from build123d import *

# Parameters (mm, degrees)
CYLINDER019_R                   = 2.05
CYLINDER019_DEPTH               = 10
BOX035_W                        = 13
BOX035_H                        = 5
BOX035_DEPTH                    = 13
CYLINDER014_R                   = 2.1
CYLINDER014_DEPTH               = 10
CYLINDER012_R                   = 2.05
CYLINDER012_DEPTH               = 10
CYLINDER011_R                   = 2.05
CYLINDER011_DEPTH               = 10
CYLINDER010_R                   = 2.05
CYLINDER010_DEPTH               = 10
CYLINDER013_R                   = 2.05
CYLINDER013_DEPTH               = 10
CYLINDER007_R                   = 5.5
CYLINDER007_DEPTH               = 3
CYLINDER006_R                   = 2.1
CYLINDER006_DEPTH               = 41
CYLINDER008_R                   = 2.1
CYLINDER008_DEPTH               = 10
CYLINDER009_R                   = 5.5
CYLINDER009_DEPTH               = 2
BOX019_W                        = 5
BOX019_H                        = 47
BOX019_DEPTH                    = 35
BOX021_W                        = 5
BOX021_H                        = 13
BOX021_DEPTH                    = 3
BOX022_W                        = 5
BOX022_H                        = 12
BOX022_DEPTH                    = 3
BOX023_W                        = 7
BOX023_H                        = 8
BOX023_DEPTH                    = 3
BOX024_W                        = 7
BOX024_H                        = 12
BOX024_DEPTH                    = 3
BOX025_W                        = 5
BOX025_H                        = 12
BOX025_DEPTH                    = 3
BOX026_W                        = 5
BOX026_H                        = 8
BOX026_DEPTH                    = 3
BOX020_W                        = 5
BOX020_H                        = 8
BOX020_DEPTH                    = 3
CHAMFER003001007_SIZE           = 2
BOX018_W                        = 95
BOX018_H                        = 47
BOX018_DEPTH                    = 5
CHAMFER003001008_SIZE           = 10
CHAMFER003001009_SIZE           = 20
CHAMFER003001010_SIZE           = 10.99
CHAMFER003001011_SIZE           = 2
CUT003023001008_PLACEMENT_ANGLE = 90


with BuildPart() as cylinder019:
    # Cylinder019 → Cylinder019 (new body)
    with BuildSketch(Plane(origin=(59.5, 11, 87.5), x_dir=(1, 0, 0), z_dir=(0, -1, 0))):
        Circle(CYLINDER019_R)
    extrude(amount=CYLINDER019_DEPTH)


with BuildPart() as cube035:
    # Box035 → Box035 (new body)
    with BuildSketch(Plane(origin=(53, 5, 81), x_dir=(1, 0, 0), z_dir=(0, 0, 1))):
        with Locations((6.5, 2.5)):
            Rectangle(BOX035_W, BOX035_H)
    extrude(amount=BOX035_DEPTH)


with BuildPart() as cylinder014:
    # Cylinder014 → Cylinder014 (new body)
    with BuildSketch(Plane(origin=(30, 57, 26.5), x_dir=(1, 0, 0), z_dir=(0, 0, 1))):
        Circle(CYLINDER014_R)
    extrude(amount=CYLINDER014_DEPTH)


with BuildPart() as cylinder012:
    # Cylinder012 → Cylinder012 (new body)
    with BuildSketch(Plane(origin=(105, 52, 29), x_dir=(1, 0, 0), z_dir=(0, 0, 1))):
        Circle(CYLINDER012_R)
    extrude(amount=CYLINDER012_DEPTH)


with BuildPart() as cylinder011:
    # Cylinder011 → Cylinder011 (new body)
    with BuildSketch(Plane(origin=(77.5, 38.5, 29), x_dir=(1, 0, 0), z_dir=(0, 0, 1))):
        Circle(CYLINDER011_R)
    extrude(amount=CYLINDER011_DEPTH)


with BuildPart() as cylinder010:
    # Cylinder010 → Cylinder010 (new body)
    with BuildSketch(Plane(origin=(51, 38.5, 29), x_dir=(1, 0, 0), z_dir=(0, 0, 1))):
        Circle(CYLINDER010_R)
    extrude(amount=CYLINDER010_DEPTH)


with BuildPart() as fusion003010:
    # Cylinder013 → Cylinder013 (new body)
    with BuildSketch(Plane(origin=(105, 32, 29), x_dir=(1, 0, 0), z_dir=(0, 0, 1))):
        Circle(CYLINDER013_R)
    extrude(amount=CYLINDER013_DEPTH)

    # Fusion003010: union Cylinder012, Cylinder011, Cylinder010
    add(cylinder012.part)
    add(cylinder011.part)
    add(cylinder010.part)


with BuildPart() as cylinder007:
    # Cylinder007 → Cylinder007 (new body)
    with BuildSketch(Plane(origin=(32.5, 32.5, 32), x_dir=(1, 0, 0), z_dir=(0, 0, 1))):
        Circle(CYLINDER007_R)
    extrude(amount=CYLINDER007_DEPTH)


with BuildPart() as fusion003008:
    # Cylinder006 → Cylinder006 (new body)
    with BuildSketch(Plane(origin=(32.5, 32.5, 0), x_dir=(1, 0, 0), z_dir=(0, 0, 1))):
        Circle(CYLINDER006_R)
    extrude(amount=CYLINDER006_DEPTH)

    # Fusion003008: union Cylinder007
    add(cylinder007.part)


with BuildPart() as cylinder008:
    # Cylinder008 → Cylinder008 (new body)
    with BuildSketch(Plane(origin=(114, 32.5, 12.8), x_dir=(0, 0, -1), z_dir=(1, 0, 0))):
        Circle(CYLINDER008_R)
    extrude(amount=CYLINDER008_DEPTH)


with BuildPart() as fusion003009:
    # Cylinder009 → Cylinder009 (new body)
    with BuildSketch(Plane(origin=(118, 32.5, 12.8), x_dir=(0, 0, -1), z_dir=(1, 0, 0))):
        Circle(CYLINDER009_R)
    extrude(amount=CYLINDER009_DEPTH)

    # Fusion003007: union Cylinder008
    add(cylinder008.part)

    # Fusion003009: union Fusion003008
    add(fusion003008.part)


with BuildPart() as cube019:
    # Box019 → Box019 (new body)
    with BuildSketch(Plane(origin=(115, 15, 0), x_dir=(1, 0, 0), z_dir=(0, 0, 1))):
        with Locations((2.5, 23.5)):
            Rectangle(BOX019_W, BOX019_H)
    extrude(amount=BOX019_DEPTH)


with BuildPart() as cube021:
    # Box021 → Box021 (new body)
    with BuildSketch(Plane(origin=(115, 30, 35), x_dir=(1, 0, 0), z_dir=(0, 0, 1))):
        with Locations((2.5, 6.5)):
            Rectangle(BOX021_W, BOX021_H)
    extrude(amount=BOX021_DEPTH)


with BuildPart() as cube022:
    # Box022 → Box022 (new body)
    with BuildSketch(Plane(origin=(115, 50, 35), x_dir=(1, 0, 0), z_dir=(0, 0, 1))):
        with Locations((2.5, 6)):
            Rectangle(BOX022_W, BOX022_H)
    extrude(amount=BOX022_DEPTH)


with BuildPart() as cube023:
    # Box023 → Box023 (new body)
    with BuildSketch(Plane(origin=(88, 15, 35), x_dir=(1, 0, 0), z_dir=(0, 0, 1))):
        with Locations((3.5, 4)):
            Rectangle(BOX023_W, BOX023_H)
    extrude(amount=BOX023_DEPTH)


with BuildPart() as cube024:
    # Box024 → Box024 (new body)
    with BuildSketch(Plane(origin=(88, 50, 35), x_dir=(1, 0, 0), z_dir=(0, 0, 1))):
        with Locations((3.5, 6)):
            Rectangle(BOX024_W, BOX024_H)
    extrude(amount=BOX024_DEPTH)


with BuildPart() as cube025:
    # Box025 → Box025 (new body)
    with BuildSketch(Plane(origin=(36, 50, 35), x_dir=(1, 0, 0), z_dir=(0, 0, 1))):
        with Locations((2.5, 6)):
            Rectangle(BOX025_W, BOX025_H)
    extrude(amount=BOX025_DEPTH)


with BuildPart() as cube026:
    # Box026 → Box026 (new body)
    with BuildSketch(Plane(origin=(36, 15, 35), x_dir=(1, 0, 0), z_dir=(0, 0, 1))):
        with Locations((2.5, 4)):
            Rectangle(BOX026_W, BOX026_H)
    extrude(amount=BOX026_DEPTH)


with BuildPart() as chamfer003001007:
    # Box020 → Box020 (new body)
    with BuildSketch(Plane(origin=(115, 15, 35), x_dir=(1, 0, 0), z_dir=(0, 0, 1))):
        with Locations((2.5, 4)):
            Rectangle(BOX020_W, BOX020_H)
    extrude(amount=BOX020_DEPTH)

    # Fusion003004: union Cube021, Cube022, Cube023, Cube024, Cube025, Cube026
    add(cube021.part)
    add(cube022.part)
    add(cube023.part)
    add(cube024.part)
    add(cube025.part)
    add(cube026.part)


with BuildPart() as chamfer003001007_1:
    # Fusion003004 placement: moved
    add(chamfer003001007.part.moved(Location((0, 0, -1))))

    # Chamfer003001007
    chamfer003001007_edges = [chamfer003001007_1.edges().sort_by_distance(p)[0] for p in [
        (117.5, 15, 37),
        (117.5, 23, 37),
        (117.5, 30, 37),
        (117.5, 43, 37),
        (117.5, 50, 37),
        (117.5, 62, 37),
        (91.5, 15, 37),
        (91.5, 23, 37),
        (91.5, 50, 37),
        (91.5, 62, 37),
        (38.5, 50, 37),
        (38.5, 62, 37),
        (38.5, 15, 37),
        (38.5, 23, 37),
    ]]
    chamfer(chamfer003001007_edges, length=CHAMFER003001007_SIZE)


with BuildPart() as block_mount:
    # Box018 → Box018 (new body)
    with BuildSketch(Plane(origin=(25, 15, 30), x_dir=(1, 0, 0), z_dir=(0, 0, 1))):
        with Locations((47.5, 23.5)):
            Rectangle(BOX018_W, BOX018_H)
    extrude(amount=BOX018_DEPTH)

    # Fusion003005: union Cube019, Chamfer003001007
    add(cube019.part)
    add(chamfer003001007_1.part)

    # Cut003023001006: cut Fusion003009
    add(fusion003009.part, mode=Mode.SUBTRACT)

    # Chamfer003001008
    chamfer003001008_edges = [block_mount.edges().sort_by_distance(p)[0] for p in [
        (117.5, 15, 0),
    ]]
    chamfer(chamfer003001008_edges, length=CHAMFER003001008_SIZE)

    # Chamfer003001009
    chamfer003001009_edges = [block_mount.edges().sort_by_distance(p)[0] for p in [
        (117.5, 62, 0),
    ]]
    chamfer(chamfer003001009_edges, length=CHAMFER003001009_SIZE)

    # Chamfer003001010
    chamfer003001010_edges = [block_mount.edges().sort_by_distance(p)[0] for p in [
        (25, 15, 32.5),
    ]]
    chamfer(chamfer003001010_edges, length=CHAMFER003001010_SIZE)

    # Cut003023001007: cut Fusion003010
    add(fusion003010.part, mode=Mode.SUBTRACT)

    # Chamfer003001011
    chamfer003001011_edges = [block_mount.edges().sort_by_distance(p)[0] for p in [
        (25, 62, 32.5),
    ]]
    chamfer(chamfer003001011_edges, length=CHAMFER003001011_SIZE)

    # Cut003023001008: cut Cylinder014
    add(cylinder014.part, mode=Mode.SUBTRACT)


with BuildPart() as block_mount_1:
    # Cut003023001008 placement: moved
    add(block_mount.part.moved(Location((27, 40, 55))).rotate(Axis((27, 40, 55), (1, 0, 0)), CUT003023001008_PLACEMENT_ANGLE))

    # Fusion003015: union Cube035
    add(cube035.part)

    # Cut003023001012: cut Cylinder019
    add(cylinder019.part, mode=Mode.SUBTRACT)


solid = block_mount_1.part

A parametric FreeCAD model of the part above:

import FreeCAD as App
import Part
import Sketcher
Q = App.Units.Quantity


def edges_at(feature, points):
    """Names of the edges that pass closest to the given points."""
    edges = feature.Shape.Edges
    near = lambda p: min(range(len(edges)), key=lambda i: edges[i].distToShape(Part.Vertex(*p))[0])
    return sorted({f"Edge{near(p) + 1}" for p in points})

doc = App.newDocument("Part")
body = doc.addObject("PartDesign::Body", "Body")

sketch1 = body.newObject("Sketcher::SketchObject", "Sketch")
sketch1.AttachmentSupport = (doc.getObject("XZ_Plane"), [""])
sketch1.MapMode = "FlatFace"
sketch1.AttachmentOffset = App.Placement(App.Vector(0, 0, -11), App.Rotation())
sketch1.addGeometry(Part.Circle(App.Vector(59.5, 87.5, 0), App.Vector(0, 0, 1), 2), False)
sketch1.addConstraint(Sketcher.Constraint("Diameter", 0, Q("4.1 mm")))
sketch1.addConstraint(Sketcher.Constraint("DistanceX", -1, 1, 0, 3, Q("59.5 mm")))
sketch1.addConstraint(Sketcher.Constraint("DistanceY", -1, 1, 0, 3, Q("87.5 mm")))
pad1 = body.newObject("PartDesign::Pad", "Pad")
pad1.Profile = sketch1
pad1.Length = 10
body2 = doc.addObject("PartDesign::Body", "Body001")

sketch2 = body2.newObject("Sketcher::SketchObject", "Sketch001")
sketch2.AttachmentSupport = (doc.getObject("XY_Plane001"), [""])
sketch2.MapMode = "FlatFace"
sketch2.AttachmentOffset = App.Placement(App.Vector(0, 0, 81), App.Rotation())
sketch2.addGeometry(Part.LineSegment(App.Vector(53, 10, 0), App.Vector(53, 5, 0)), False)
sketch2.addGeometry(Part.LineSegment(App.Vector(53, 5, 0), App.Vector(66, 5, 0)), False)
sketch2.addGeometry(Part.LineSegment(App.Vector(66, 5, 0), App.Vector(66, 10, 0)), False)
sketch2.addGeometry(Part.LineSegment(App.Vector(66, 10, 0), App.Vector(53, 10, 0)), False)
sketch2.addConstraint(Sketcher.Constraint("Coincident", 0, 2, 1, 1))
sketch2.addConstraint(Sketcher.Constraint("Coincident", 1, 2, 2, 1))
sketch2.addConstraint(Sketcher.Constraint("Coincident", 2, 2, 3, 1))
sketch2.addConstraint(Sketcher.Constraint("Coincident", 3, 2, 0, 1))
sketch2.addConstraint(Sketcher.Constraint("Vertical", 0))
sketch2.addConstraint(Sketcher.Constraint("Horizontal", 1))
sketch2.addConstraint(Sketcher.Constraint("Vertical", 2))
sketch2.addConstraint(Sketcher.Constraint("Horizontal", 3))
sketch2.addConstraint(Sketcher.Constraint("DistanceX", 1, 1, 1, 2, Q("13 mm")))
sketch2.addConstraint(Sketcher.Constraint("DistanceY", 0, 2, 0, 1, Q("5 mm")))
sketch2.addConstraint(Sketcher.Constraint("DistanceX", -1, 1, 0, 2, Q("53 mm")))
sketch2.addConstraint(Sketcher.Constraint("DistanceY", -1, 1, 0, 2, Q("5 mm")))
pad2 = body2.newObject("PartDesign::Pad", "Pad001")
pad2.Profile = sketch2
pad2.Length = 13
body3 = doc.addObject("PartDesign::Body", "Body002")

sketch3 = body3.newObject("Sketcher::SketchObject", "Sketch002")
sketch3.AttachmentSupport = (doc.getObject("XY_Plane002"), [""])
sketch3.MapMode = "FlatFace"
sketch3.AttachmentOffset = App.Placement(App.Vector(0, 0, 26.5), App.Rotation())
sketch3.addGeometry(Part.Circle(App.Vector(30, 57, 0), App.Vector(0, 0, 1), 2.1), False)
sketch3.addConstraint(Sketcher.Constraint("Diameter", 0, Q("4.2 mm")))
sketch3.addConstraint(Sketcher.Constraint("DistanceX", -1, 1, 0, 3, Q("30 mm")))
sketch3.addConstraint(Sketcher.Constraint("DistanceY", -1, 1, 0, 3, Q("57 mm")))
pad3 = body3.newObject("PartDesign::Pad", "Pad002")
pad3.Profile = sketch3
pad3.Length = 10
body4 = doc.addObject("PartDesign::Body", "Body003")

sketch4 = body4.newObject("Sketcher::SketchObject", "Sketch003")
sketch4.AttachmentSupport = (doc.getObject("XY_Plane003"), [""])
sketch4.MapMode = "FlatFace"
sketch4.AttachmentOffset = App.Placement(App.Vector(0, 0, 29), App.Rotation())
sketch4.addGeometry(Part.Circle(App.Vector(105, 52, 0), App.Vector(0, 0, 1), 2), False)
sketch4.addConstraint(Sketcher.Constraint("Diameter", 0, Q("4.1 mm")))
sketch4.addConstraint(Sketcher.Constraint("DistanceX", -1, 1, 0, 3, Q("105 mm")))
sketch4.addConstraint(Sketcher.Constraint("DistanceY", -1, 1, 0, 3, Q("52 mm")))
pad4 = body4.newObject("PartDesign::Pad", "Pad003")
pad4.Profile = sketch4
pad4.Length = 10
body5 = doc.addObject("PartDesign::Body", "Body004")

sketch5 = body5.newObject("Sketcher::SketchObject", "Sketch004")
sketch5.AttachmentSupport = (doc.getObject("XY_Plane004"), [""])
sketch5.MapMode = "FlatFace"
sketch5.AttachmentOffset = App.Placement(App.Vector(0, 0, 29), App.Rotation())
sketch5.addGeometry(Part.Circle(App.Vector(77.5, 38.5, 0), App.Vector(0, 0, 1), 2), False)
sketch5.addConstraint(Sketcher.Constraint("Diameter", 0, Q("4.1 mm")))
sketch5.addConstraint(Sketcher.Constraint("DistanceX", -1, 1, 0, 3, Q("77.5 mm")))
sketch5.addConstraint(Sketcher.Constraint("DistanceY", -1, 1, 0, 3, Q("38.5 mm")))
pad5 = body5.newObject("PartDesign::Pad", "Pad004")
pad5.Profile = sketch5
pad5.Length = 10
body6 = doc.addObject("PartDesign::Body", "Body005")

sketch6 = body6.newObject("Sketcher::SketchObject", "Sketch005")
sketch6.AttachmentSupport = (doc.getObject("XY_Plane005"), [""])
sketch6.MapMode = "FlatFace"
sketch6.AttachmentOffset = App.Placement(App.Vector(0, 0, 29), App.Rotation())
sketch6.addGeometry(Part.Circle(App.Vector(51, 38.5, 0), App.Vector(0, 0, 1), 2), False)
sketch6.addConstraint(Sketcher.Constraint("Diameter", 0, Q("4.1 mm")))
sketch6.addConstraint(Sketcher.Constraint("DistanceX", -1, 1, 0, 3, Q("51 mm")))
sketch6.addConstraint(Sketcher.Constraint("DistanceY", -1, 1, 0, 3, Q("38.5 mm")))
pad6 = body6.newObject("PartDesign::Pad", "Pad005")
pad6.Profile = sketch6
pad6.Length = 10
body7 = doc.addObject("PartDesign::Body", "Body006")
body7.AllowCompound = True

sketch7 = body7.newObject("Sketcher::SketchObject", "Sketch006")
sketch7.AttachmentSupport = (doc.getObject("XY_Plane006"), [""])
sketch7.MapMode = "FlatFace"
sketch7.AttachmentOffset = App.Placement(App.Vector(0, 0, 29), App.Rotation())
sketch7.addGeometry(Part.Circle(App.Vector(105, 32, 0), App.Vector(0, 0, 1), 2), False)
sketch7.addConstraint(Sketcher.Constraint("Diameter", 0, Q("4.1 mm")))
sketch7.addConstraint(Sketcher.Constraint("DistanceX", -1, 1, 0, 3, Q("105 mm")))
sketch7.addConstraint(Sketcher.Constraint("DistanceY", -1, 1, 0, 3, Q("32 mm")))
pad7 = body7.newObject("PartDesign::Pad", "Pad006")
pad7.Profile = sketch7
pad7.Length = 10
doc.recompute()

boolean = body7.newObject("PartDesign::Boolean", "Boolean")
boolean.Type = "Fuse"
boolean.addObjects([body4])
doc.recompute()

boolean2 = body7.newObject("PartDesign::Boolean", "Boolean001")
boolean2.Type = "Fuse"
boolean2.addObjects([body5])
doc.recompute()

boolean3 = body7.newObject("PartDesign::Boolean", "Boolean002")
boolean3.Type = "Fuse"
boolean3.addObjects([body6])
body8 = doc.addObject("PartDesign::Body", "Body007")

sketch8 = body8.newObject("Sketcher::SketchObject", "Sketch007")
sketch8.AttachmentSupport = (doc.getObject("XY_Plane007"), [""])
sketch8.MapMode = "FlatFace"
sketch8.AttachmentOffset = App.Placement(App.Vector(0, 0, 32), App.Rotation())
sketch8.addGeometry(Part.Circle(App.Vector(32, 32, 0), App.Vector(0, 0, 1), 6), False)
sketch8.addConstraint(Sketcher.Constraint("Diameter", 0, Q("11 mm")))
sketch8.addConstraint(Sketcher.Constraint("DistanceX", -1, 1, 0, 3, Q("32.5 mm")))
sketch8.addConstraint(Sketcher.Constraint("DistanceY", -1, 1, 0, 3, Q("32.5 mm")))
pad8 = body8.newObject("PartDesign::Pad", "Pad007")
pad8.Profile = sketch8
pad8.Length = 3
body9 = doc.addObject("PartDesign::Body", "Body008")

sketch9 = body9.newObject("Sketcher::SketchObject", "Sketch008")
sketch9.AttachmentSupport = (doc.getObject("XY_Plane008"), [""])
sketch9.MapMode = "FlatFace"
sketch9.addGeometry(Part.Circle(App.Vector(32.5, 32.5, 0), App.Vector(0, 0, 1), 2.1), False)
sketch9.addConstraint(Sketcher.Constraint("Diameter", 0, Q("4.2 mm")))
sketch9.addConstraint(Sketcher.Constraint("DistanceX", -1, 1, 0, 3, Q("32.5 mm")))
sketch9.addConstraint(Sketcher.Constraint("DistanceY", -1, 1, 0, 3, Q("32.5 mm")))
pad9 = body9.newObject("PartDesign::Pad", "Pad008")
pad9.Profile = sketch9
pad9.Length = 41
doc.recompute()

boolean4 = body9.newObject("PartDesign::Boolean", "Boolean003")
boolean4.Type = "Fuse"
boolean4.addObjects([body8])
body10 = doc.addObject("PartDesign::Body", "Body009")

sketch10 = body10.newObject("Sketcher::SketchObject", "Sketch009")
sketch10.AttachmentSupport = (doc.getObject("YZ_Plane009"), [""])
sketch10.MapMode = "FlatFace"
sketch10.AttachmentOffset = App.Placement(App.Vector(0, 0, 114), App.Rotation())
sketch10.addGeometry(Part.Circle(App.Vector(32.5, 12.8, 0), App.Vector(0, 0, 1), 2.1), False)
sketch10.addConstraint(Sketcher.Constraint("Diameter", 0, Q("4.2 mm")))
sketch10.addConstraint(Sketcher.Constraint("DistanceX", -1, 1, 0, 3, Q("32.5 mm")))
sketch10.addConstraint(Sketcher.Constraint("DistanceY", -1, 1, 0, 3, Q("12.8 mm")))
pad10 = body10.newObject("PartDesign::Pad", "Pad009")
pad10.Profile = sketch10
pad10.Length = 10
body11 = doc.addObject("PartDesign::Body", "Body010")
body11.AllowCompound = True

sketch11 = body11.newObject("Sketcher::SketchObject", "Sketch010")
sketch11.AttachmentSupport = (doc.getObject("YZ_Plane010"), [""])
sketch11.MapMode = "FlatFace"
sketch11.AttachmentOffset = App.Placement(App.Vector(0, 0, 118), App.Rotation())
sketch11.addGeometry(Part.Circle(App.Vector(32, 13, 0), App.Vector(0, 0, 1), 6), False)
sketch11.addConstraint(Sketcher.Constraint("Diameter", 0, Q("11 mm")))
sketch11.addConstraint(Sketcher.Constraint("DistanceX", -1, 1, 0, 3, Q("32.5 mm")))
sketch11.addConstraint(Sketcher.Constraint("DistanceY", -1, 1, 0, 3, Q("12.8 mm")))
pad11 = body11.newObject("PartDesign::Pad", "Pad010")
pad11.Profile = sketch11
pad11.Length = 2
doc.recompute()

boolean5 = body11.newObject("PartDesign::Boolean", "Boolean004")
boolean5.Type = "Fuse"
boolean5.addObjects([body10])
doc.recompute()

boolean6 = body11.newObject("PartDesign::Boolean", "Boolean005")
boolean6.Type = "Fuse"
boolean6.addObjects([body9])
body12 = doc.addObject("PartDesign::Body", "Body011")

sketch12 = body12.newObject("Sketcher::SketchObject", "Sketch011")
sketch12.AttachmentSupport = (doc.getObject("XY_Plane011"), [""])
sketch12.MapMode = "FlatFace"
sketch12.addGeometry(Part.LineSegment(App.Vector(115, 62, 0), App.Vector(115, 15, 0)), False)
sketch12.addGeometry(Part.LineSegment(App.Vector(115, 15, 0), App.Vector(120, 15, 0)), False)
sketch12.addGeometry(Part.LineSegment(App.Vector(120, 15, 0), App.Vector(120, 62, 0)), False)
sketch12.addGeometry(Part.LineSegment(App.Vector(120, 62, 0), App.Vector(115, 62, 0)), False)
sketch12.addConstraint(Sketcher.Constraint("Coincident", 0, 2, 1, 1))
sketch12.addConstraint(Sketcher.Constraint("Coincident", 1, 2, 2, 1))
sketch12.addConstraint(Sketcher.Constraint("Coincident", 2, 2, 3, 1))
sketch12.addConstraint(Sketcher.Constraint("Coincident", 3, 2, 0, 1))
sketch12.addConstraint(Sketcher.Constraint("Vertical", 0))
sketch12.addConstraint(Sketcher.Constraint("Horizontal", 1))
sketch12.addConstraint(Sketcher.Constraint("Vertical", 2))
sketch12.addConstraint(Sketcher.Constraint("Horizontal", 3))
sketch12.addConstraint(Sketcher.Constraint("DistanceX", 1, 1, 1, 2, Q("5 mm")))
sketch12.addConstraint(Sketcher.Constraint("DistanceY", 0, 2, 0, 1, Q("47 mm")))
sketch12.addConstraint(Sketcher.Constraint("DistanceX", -1, 1, 0, 2, Q("115 mm")))
sketch12.addConstraint(Sketcher.Constraint("DistanceY", -1, 1, 0, 2, Q("15 mm")))
pad12 = body12.newObject("PartDesign::Pad", "Pad011")
pad12.Profile = sketch12
pad12.Length = 35
body13 = doc.addObject("PartDesign::Body", "Body012")

sketch13 = body13.newObject("Sketcher::SketchObject", "Sketch012")
sketch13.AttachmentSupport = (doc.getObject("XY_Plane012"), [""])
sketch13.MapMode = "FlatFace"
sketch13.AttachmentOffset = App.Placement(App.Vector(0, 0, 35), App.Rotation())
sketch13.addGeometry(Part.LineSegment(App.Vector(115, 43, 0), App.Vector(115, 30, 0)), False)
sketch13.addGeometry(Part.LineSegment(App.Vector(115, 30, 0), App.Vector(120, 30, 0)), False)
sketch13.addGeometry(Part.LineSegment(App.Vector(120, 30, 0), App.Vector(120, 43, 0)), False)
sketch13.addGeometry(Part.LineSegment(App.Vector(120, 43, 0), App.Vector(115, 43, 0)), False)
sketch13.addConstraint(Sketcher.Constraint("Coincident", 0, 2, 1, 1))
sketch13.addConstraint(Sketcher.Constraint("Coincident", 1, 2, 2, 1))
sketch13.addConstraint(Sketcher.Constraint("Coincident", 2, 2, 3, 1))
sketch13.addConstraint(Sketcher.Constraint("Coincident", 3, 2, 0, 1))
sketch13.addConstraint(Sketcher.Constraint("Vertical", 0))
sketch13.addConstraint(Sketcher.Constraint("Horizontal", 1))
sketch13.addConstraint(Sketcher.Constraint("Vertical", 2))
sketch13.addConstraint(Sketcher.Constraint("Horizontal", 3))
sketch13.addConstraint(Sketcher.Constraint("DistanceX", 1, 1, 1, 2, Q("5 mm")))
sketch13.addConstraint(Sketcher.Constraint("DistanceY", 0, 2, 0, 1, Q("13 mm")))
sketch13.addConstraint(Sketcher.Constraint("DistanceX", -1, 1, 0, 2, Q("115 mm")))
sketch13.addConstraint(Sketcher.Constraint("DistanceY", -1, 1, 0, 2, Q("30 mm")))
pad13 = body13.newObject("PartDesign::Pad", "Pad012")
pad13.Profile = sketch13
pad13.Length = 3
body14 = doc.addObject("PartDesign::Body", "Body013")

sketch14 = body14.newObject("Sketcher::SketchObject", "Sketch013")
sketch14.AttachmentSupport = (doc.getObject("XY_Plane013"), [""])
sketch14.MapMode = "FlatFace"
sketch14.AttachmentOffset = App.Placement(App.Vector(0, 0, 35), App.Rotation())
sketch14.addGeometry(Part.LineSegment(App.Vector(115, 62, 0), App.Vector(115, 50, 0)), False)
sketch14.addGeometry(Part.LineSegment(App.Vector(115, 50, 0), App.Vector(120, 50, 0)), False)
sketch14.addGeometry(Part.LineSegment(App.Vector(120, 50, 0), App.Vector(120, 62, 0)), False)
sketch14.addGeometry(Part.LineSegment(App.Vector(120, 62, 0), App.Vector(115, 62, 0)), False)
sketch14.addConstraint(Sketcher.Constraint("Coincident", 0, 2, 1, 1))
sketch14.addConstraint(Sketcher.Constraint("Coincident", 1, 2, 2, 1))
sketch14.addConstraint(Sketcher.Constraint("Coincident", 2, 2, 3, 1))
sketch14.addConstraint(Sketcher.Constraint("Coincident", 3, 2, 0, 1))
sketch14.addConstraint(Sketcher.Constraint("Vertical", 0))
sketch14.addConstraint(Sketcher.Constraint("Horizontal", 1))
sketch14.addConstraint(Sketcher.Constraint("Vertical", 2))
sketch14.addConstraint(Sketcher.Constraint("Horizontal", 3))
sketch14.addConstraint(Sketcher.Constraint("DistanceX", 1, 1, 1, 2, Q("5 mm")))
sketch14.addConstraint(Sketcher.Constraint("DistanceY", 0, 2, 0, 1, Q("12 mm")))
sketch14.addConstraint(Sketcher.Constraint("DistanceX", -1, 1, 0, 2, Q("115 mm")))
sketch14.addConstraint(Sketcher.Constraint("DistanceY", -1, 1, 0, 2, Q("50 mm")))
pad14 = body14.newObject("PartDesign::Pad", "Pad013")
pad14.Profile = sketch14
pad14.Length = 3
body15 = doc.addObject("PartDesign::Body", "Body014")

sketch15 = body15.newObject("Sketcher::SketchObject", "Sketch014")
sketch15.AttachmentSupport = (doc.getObject("XY_Plane014"), [""])
sketch15.MapMode = "FlatFace"
sketch15.AttachmentOffset = App.Placement(App.Vector(0, 0, 35), App.Rotation())
sketch15.addGeometry(Part.LineSegment(App.Vector(88, 23, 0), App.Vector(88, 15, 0)), False)
sketch15.addGeometry(Part.LineSegment(App.Vector(88, 15, 0), App.Vector(95, 15, 0)), False)
sketch15.addGeometry(Part.LineSegment(App.Vector(95, 15, 0), App.Vector(95, 23, 0)), False)
sketch15.addGeometry(Part.LineSegment(App.Vector(95, 23, 0), App.Vector(88, 23, 0)), False)
sketch15.addConstraint(Sketcher.Constraint("Coincident", 0, 2, 1, 1))
sketch15.addConstraint(Sketcher.Constraint("Coincident", 1, 2, 2, 1))
sketch15.addConstraint(Sketcher.Constraint("Coincident", 2, 2, 3, 1))
sketch15.addConstraint(Sketcher.Constraint("Coincident", 3, 2, 0, 1))
sketch15.addConstraint(Sketcher.Constraint("Vertical", 0))
sketch15.addConstraint(Sketcher.Constraint("Horizontal", 1))
sketch15.addConstraint(Sketcher.Constraint("Vertical", 2))
sketch15.addConstraint(Sketcher.Constraint("Horizontal", 3))
sketch15.addConstraint(Sketcher.Constraint("DistanceX", 1, 1, 1, 2, Q("7 mm")))
sketch15.addConstraint(Sketcher.Constraint("DistanceY", 0, 2, 0, 1, Q("8 mm")))
sketch15.addConstraint(Sketcher.Constraint("DistanceX", -1, 1, 0, 2, Q("88 mm")))
sketch15.addConstraint(Sketcher.Constraint("DistanceY", -1, 1, 0, 2, Q("15 mm")))
pad15 = body15.newObject("PartDesign::Pad", "Pad014")
pad15.Profile = sketch15
pad15.Length = 3
body16 = doc.addObject("PartDesign::Body", "Body015")

sketch16 = body16.newObject("Sketcher::SketchObject", "Sketch015")
sketch16.AttachmentSupport = (doc.getObject("XY_Plane015"), [""])
sketch16.MapMode = "FlatFace"
sketch16.AttachmentOffset = App.Placement(App.Vector(0, 0, 35), App.Rotation())
sketch16.addGeometry(Part.LineSegment(App.Vector(88, 62, 0), App.Vector(88, 50, 0)), False)
sketch16.addGeometry(Part.LineSegment(App.Vector(88, 50, 0), App.Vector(95, 50, 0)), False)
sketch16.addGeometry(Part.LineSegment(App.Vector(95, 50, 0), App.Vector(95, 62, 0)), False)
sketch16.addGeometry(Part.LineSegment(App.Vector(95, 62, 0), App.Vector(88, 62, 0)), False)
sketch16.addConstraint(Sketcher.Constraint("Coincident", 0, 2, 1, 1))
sketch16.addConstraint(Sketcher.Constraint("Coincident", 1, 2, 2, 1))
sketch16.addConstraint(Sketcher.Constraint("Coincident", 2, 2, 3, 1))
sketch16.addConstraint(Sketcher.Constraint("Coincident", 3, 2, 0, 1))
sketch16.addConstraint(Sketcher.Constraint("Vertical", 0))
sketch16.addConstraint(Sketcher.Constraint("Horizontal", 1))
sketch16.addConstraint(Sketcher.Constraint("Vertical", 2))
sketch16.addConstraint(Sketcher.Constraint("Horizontal", 3))
sketch16.addConstraint(Sketcher.Constraint("DistanceX", 1, 1, 1, 2, Q("7 mm")))
sketch16.addConstraint(Sketcher.Constraint("DistanceY", 0, 2, 0, 1, Q("12 mm")))
sketch16.addConstraint(Sketcher.Constraint("DistanceX", -1, 1, 0, 2, Q("88 mm")))
sketch16.addConstraint(Sketcher.Constraint("DistanceY", -1, 1, 0, 2, Q("50 mm")))
pad16 = body16.newObject("PartDesign::Pad", "Pad015")
pad16.Profile = sketch16
pad16.Length = 3
body17 = doc.addObject("PartDesign::Body", "Body016")

sketch17 = body17.newObject("Sketcher::SketchObject", "Sketch016")
sketch17.AttachmentSupport = (doc.getObject("XY_Plane016"), [""])
sketch17.MapMode = "FlatFace"
sketch17.AttachmentOffset = App.Placement(App.Vector(0, 0, 35), App.Rotation())
sketch17.addGeometry(Part.LineSegment(App.Vector(36, 62, 0), App.Vector(36, 50, 0)), False)
sketch17.addGeometry(Part.LineSegment(App.Vector(36, 50, 0), App.Vector(41, 50, 0)), False)
sketch17.addGeometry(Part.LineSegment(App.Vector(41, 50, 0), App.Vector(41, 62, 0)), False)
sketch17.addGeometry(Part.LineSegment(App.Vector(41, 62, 0), App.Vector(36, 62, 0)), False)
sketch17.addConstraint(Sketcher.Constraint("Coincident", 0, 2, 1, 1))
sketch17.addConstraint(Sketcher.Constraint("Coincident", 1, 2, 2, 1))
sketch17.addConstraint(Sketcher.Constraint("Coincident", 2, 2, 3, 1))
sketch17.addConstraint(Sketcher.Constraint("Coincident", 3, 2, 0, 1))
sketch17.addConstraint(Sketcher.Constraint("Vertical", 0))
sketch17.addConstraint(Sketcher.Constraint("Horizontal", 1))
sketch17.addConstraint(Sketcher.Constraint("Vertical", 2))
sketch17.addConstraint(Sketcher.Constraint("Horizontal", 3))
sketch17.addConstraint(Sketcher.Constraint("DistanceX", 1, 1, 1, 2, Q("5 mm")))
sketch17.addConstraint(Sketcher.Constraint("DistanceY", 0, 2, 0, 1, Q("12 mm")))
sketch17.addConstraint(Sketcher.Constraint("DistanceX", -1, 1, 0, 2, Q("36 mm")))
sketch17.addConstraint(Sketcher.Constraint("DistanceY", -1, 1, 0, 2, Q("50 mm")))
pad17 = body17.newObject("PartDesign::Pad", "Pad016")
pad17.Profile = sketch17
pad17.Length = 3
body18 = doc.addObject("PartDesign::Body", "Body017")

sketch18 = body18.newObject("Sketcher::SketchObject", "Sketch017")
sketch18.AttachmentSupport = (doc.getObject("XY_Plane017"), [""])
sketch18.MapMode = "FlatFace"
sketch18.AttachmentOffset = App.Placement(App.Vector(0, 0, 35), App.Rotation())
sketch18.addGeometry(Part.LineSegment(App.Vector(36, 23, 0), App.Vector(36, 15, 0)), False)
sketch18.addGeometry(Part.LineSegment(App.Vector(36, 15, 0), App.Vector(41, 15, 0)), False)
sketch18.addGeometry(Part.LineSegment(App.Vector(41, 15, 0), App.Vector(41, 23, 0)), False)
sketch18.addGeometry(Part.LineSegment(App.Vector(41, 23, 0), App.Vector(36, 23, 0)), False)
sketch18.addConstraint(Sketcher.Constraint("Coincident", 0, 2, 1, 1))
sketch18.addConstraint(Sketcher.Constraint("Coincident", 1, 2, 2, 1))
sketch18.addConstraint(Sketcher.Constraint("Coincident", 2, 2, 3, 1))
sketch18.addConstraint(Sketcher.Constraint("Coincident", 3, 2, 0, 1))
sketch18.addConstraint(Sketcher.Constraint("Vertical", 0))
sketch18.addConstraint(Sketcher.Constraint("Horizontal", 1))
sketch18.addConstraint(Sketcher.Constraint("Vertical", 2))
sketch18.addConstraint(Sketcher.Constraint("Horizontal", 3))
sketch18.addConstraint(Sketcher.Constraint("DistanceX", 1, 1, 1, 2, Q("5 mm")))
sketch18.addConstraint(Sketcher.Constraint("DistanceY", 0, 2, 0, 1, Q("8 mm")))
sketch18.addConstraint(Sketcher.Constraint("DistanceX", -1, 1, 0, 2, Q("36 mm")))
sketch18.addConstraint(Sketcher.Constraint("DistanceY", -1, 1, 0, 2, Q("15 mm")))
pad18 = body18.newObject("PartDesign::Pad", "Pad017")
pad18.Profile = sketch18
pad18.Length = 3
body19 = doc.addObject("PartDesign::Body", "Body018")
body19.AllowCompound = True

sketch19 = body19.newObject("Sketcher::SketchObject", "Sketch018")
sketch19.AttachmentSupport = (doc.getObject("XY_Plane018"), [""])
sketch19.MapMode = "FlatFace"
sketch19.AttachmentOffset = App.Placement(App.Vector(0, 0, 35), App.Rotation())
sketch19.addGeometry(Part.LineSegment(App.Vector(115, 23, 0), App.Vector(115, 15, 0)), False)
sketch19.addGeometry(Part.LineSegment(App.Vector(115, 15, 0), App.Vector(120, 15, 0)), False)
sketch19.addGeometry(Part.LineSegment(App.Vector(120, 15, 0), App.Vector(120, 23, 0)), False)
sketch19.addGeometry(Part.LineSegment(App.Vector(120, 23, 0), App.Vector(115, 23, 0)), False)
sketch19.addConstraint(Sketcher.Constraint("Coincident", 0, 2, 1, 1))
sketch19.addConstraint(Sketcher.Constraint("Coincident", 1, 2, 2, 1))
sketch19.addConstraint(Sketcher.Constraint("Coincident", 2, 2, 3, 1))
sketch19.addConstraint(Sketcher.Constraint("Coincident", 3, 2, 0, 1))
sketch19.addConstraint(Sketcher.Constraint("Vertical", 0))
sketch19.addConstraint(Sketcher.Constraint("Horizontal", 1))
sketch19.addConstraint(Sketcher.Constraint("Vertical", 2))
sketch19.addConstraint(Sketcher.Constraint("Horizontal", 3))
sketch19.addConstraint(Sketcher.Constraint("DistanceX", 1, 1, 1, 2, Q("5 mm")))
sketch19.addConstraint(Sketcher.Constraint("DistanceY", 0, 2, 0, 1, Q("8 mm")))
sketch19.addConstraint(Sketcher.Constraint("DistanceX", -1, 1, 0, 2, Q("115 mm")))
sketch19.addConstraint(Sketcher.Constraint("DistanceY", -1, 1, 0, 2, Q("15 mm")))
pad19 = body19.newObject("PartDesign::Pad", "Pad018")
pad19.Profile = sketch19
pad19.Length = 3
doc.recompute()

boolean7 = body19.newObject("PartDesign::Boolean", "Boolean006")
boolean7.Type = "Fuse"
boolean7.addObjects([body13])
doc.recompute()

boolean8 = body19.newObject("PartDesign::Boolean", "Boolean007")
boolean8.Type = "Fuse"
boolean8.addObjects([body14])
doc.recompute()

boolean9 = body19.newObject("PartDesign::Boolean", "Boolean008")
boolean9.Type = "Fuse"
boolean9.addObjects([body15])
doc.recompute()

boolean10 = body19.newObject("PartDesign::Boolean", "Boolean009")
boolean10.Type = "Fuse"
boolean10.addObjects([body16])
doc.recompute()

boolean11 = body19.newObject("PartDesign::Boolean", "Boolean010")
boolean11.Type = "Fuse"
boolean11.addObjects([body17])
doc.recompute()

boolean12 = body19.newObject("PartDesign::Boolean", "Boolean011")
boolean12.Type = "Fuse"
boolean12.addObjects([body18])
body20 = doc.addObject("PartDesign::Body", "Body019")
body20.AllowCompound = True
doc.recompute()

body19.Placement = App.Placement(App.Vector(0, 0, -1), App.Rotation(App.Vector(0, 0, 1), 0))
boolean13 = body20.newObject("PartDesign::Boolean", "Boolean012")
boolean13.Type = "Fuse"
boolean13.addObjects([body19])
doc.recompute()

chamfer = body20.newObject("PartDesign::Chamfer", "Chamfer")
chamfer.Base = (boolean13, edges_at(boolean13, [
    (117.5, 15, 37),
    (117.5, 23, 37),
    (117.5, 30, 37),
    (117.5, 43, 37),
    (117.5, 50, 37),
    (117.5, 62, 37),
    (91.5, 15, 37),
    (91.5, 23, 37),
    (91.5, 50, 37),
    (91.5, 62, 37),
    (38.5, 50, 37),
    (38.5, 62, 37),
    (38.5, 15, 37),
    (38.5, 23, 37),
]))
chamfer.Size = 2
body21 = doc.addObject("PartDesign::Body", "Body020")

sketch20 = body21.newObject("Sketcher::SketchObject", "Sketch019")
sketch20.AttachmentSupport = (doc.getObject("XY_Plane020"), [""])
sketch20.MapMode = "FlatFace"
sketch20.AttachmentOffset = App.Placement(App.Vector(0, 0, 30), App.Rotation())
sketch20.addGeometry(Part.LineSegment(App.Vector(25, 62, 0), App.Vector(25, 15, 0)), False)
sketch20.addGeometry(Part.LineSegment(App.Vector(25, 15, 0), App.Vector(120, 15, 0)), False)
sketch20.addGeometry(Part.LineSegment(App.Vector(120, 15, 0), App.Vector(120, 62, 0)), False)
sketch20.addGeometry(Part.LineSegment(App.Vector(120, 62, 0), App.Vector(25, 62, 0)), False)
sketch20.addConstraint(Sketcher.Constraint("Coincident", 0, 2, 1, 1))
sketch20.addConstraint(Sketcher.Constraint("Coincident", 1, 2, 2, 1))
sketch20.addConstraint(Sketcher.Constraint("Coincident", 2, 2, 3, 1))
sketch20.addConstraint(Sketcher.Constraint("Coincident", 3, 2, 0, 1))
sketch20.addConstraint(Sketcher.Constraint("Vertical", 0))
sketch20.addConstraint(Sketcher.Constraint("Horizontal", 1))
sketch20.addConstraint(Sketcher.Constraint("Vertical", 2))
sketch20.addConstraint(Sketcher.Constraint("Horizontal", 3))
sketch20.addConstraint(Sketcher.Constraint("DistanceX", 1, 1, 1, 2, Q("95 mm")))
sketch20.addConstraint(Sketcher.Constraint("DistanceY", 0, 2, 0, 1, Q("47 mm")))
sketch20.addConstraint(Sketcher.Constraint("DistanceX", -1, 1, 0, 2, Q("25 mm")))
sketch20.addConstraint(Sketcher.Constraint("DistanceY", -1, 1, 0, 2, Q("15 mm")))
pad20 = body21.newObject("PartDesign::Pad", "Pad019")
pad20.Profile = sketch20
pad20.Length = 5
doc.recompute()

boolean14 = body21.newObject("PartDesign::Boolean", "Boolean013")
boolean14.Type = "Fuse"
boolean14.addObjects([body12])
doc.recompute()

boolean15 = body21.newObject("PartDesign::Boolean", "Boolean014")
boolean15.Type = "Fuse"
boolean15.addObjects([body20])
doc.recompute()

boolean16 = body21.newObject("PartDesign::Boolean", "Boolean015")
boolean16.Type = "Cut"
boolean16.addObjects([body11])
doc.recompute()

chamfer2 = body21.newObject("PartDesign::Chamfer", "Chamfer001")
chamfer2.Base = (boolean16, edges_at(boolean16, [(117.5, 15, 0)]))
chamfer2.Size = 10
doc.recompute()

chamfer3 = body21.newObject("PartDesign::Chamfer", "Chamfer002")
chamfer3.Base = (chamfer2, edges_at(chamfer2, [(117.5, 62, 0)]))
chamfer3.Size = 20
doc.recompute()

chamfer4 = body21.newObject("PartDesign::Chamfer", "Chamfer003")
chamfer4.Base = (chamfer3, edges_at(chamfer3, [(25, 15, 32.5)]))
chamfer4.Size = 10.99
doc.recompute()

boolean17 = body21.newObject("PartDesign::Boolean", "Boolean016")
boolean17.Type = "Cut"
boolean17.addObjects([body7])
doc.recompute()

chamfer5 = body21.newObject("PartDesign::Chamfer", "Chamfer004")
chamfer5.Base = (boolean17, edges_at(boolean17, [(25, 62, 32.5)]))
chamfer5.Size = 2
doc.recompute()

boolean18 = body21.newObject("PartDesign::Boolean", "Boolean017")
boolean18.Type = "Cut"
boolean18.addObjects([body3])
body22 = doc.addObject("PartDesign::Body", "Body021")
doc.recompute()

body21.Placement = App.Placement(App.Vector(27, 40, 55), App.Rotation(App.Vector(1, 0, 0), 90))
boolean19 = body22.newObject("PartDesign::Boolean", "Boolean018")
boolean19.Type = "Fuse"
boolean19.addObjects([body21])
doc.recompute()

boolean20 = body22.newObject("PartDesign::Boolean", "Boolean019")
boolean20.Type = "Fuse"
boolean20.addObjects([body2])
doc.recompute()

boolean21 = body22.newObject("PartDesign::Boolean", "Boolean020")
boolean21.Type = "Cut"
boolean21.addObjects([body])

doc.recompute()
